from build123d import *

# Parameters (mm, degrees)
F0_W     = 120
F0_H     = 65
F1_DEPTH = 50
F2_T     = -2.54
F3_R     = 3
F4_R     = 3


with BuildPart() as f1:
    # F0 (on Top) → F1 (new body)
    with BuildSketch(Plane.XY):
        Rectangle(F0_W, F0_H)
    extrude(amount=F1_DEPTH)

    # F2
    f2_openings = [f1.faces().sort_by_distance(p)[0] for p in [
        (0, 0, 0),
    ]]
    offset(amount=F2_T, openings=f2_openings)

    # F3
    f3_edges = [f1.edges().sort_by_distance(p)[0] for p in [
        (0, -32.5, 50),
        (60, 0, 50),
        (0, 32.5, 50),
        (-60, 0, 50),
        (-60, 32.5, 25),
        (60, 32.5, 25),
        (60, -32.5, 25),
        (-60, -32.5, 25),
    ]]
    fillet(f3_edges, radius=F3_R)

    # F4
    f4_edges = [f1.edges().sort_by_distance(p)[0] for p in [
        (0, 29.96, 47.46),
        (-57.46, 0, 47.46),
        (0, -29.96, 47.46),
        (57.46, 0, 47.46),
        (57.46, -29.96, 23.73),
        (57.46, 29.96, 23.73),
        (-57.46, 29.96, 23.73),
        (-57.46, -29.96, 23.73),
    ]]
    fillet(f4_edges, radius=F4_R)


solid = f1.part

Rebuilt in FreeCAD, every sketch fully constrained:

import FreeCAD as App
import Part
import Sketcher

V = App.Vector
Q = App.Units.Quantity


def edges_at(feature, points):
    """Names of the edges that pass closest to the given points."""
    edges = feature.Shape.Edges
    near = lambda p: min(range(len(edges)), key=lambda i: edges[i].distToShape(Part.Vertex(*p))[0])
    return sorted({f"Edge{near(p) + 1}" for p in points})


def faces_at(feature, points):
    """Names of the faces that lie closest to the given points."""
    faces = feature.Shape.Faces
    near = lambda p: min(range(len(faces)), key=lambda i: faces[i].distToShape(Part.Vertex(*p))[0])
    return sorted({f"Face{near(p) + 1}" for p in points})


def add_polygon(sketch, points):
    """Adds a closed chain of lines whose ends are joined by coincident constraints."""
    first, n = sketch.GeometryCount, len(points)
    for a, b in zip(points, points[1:] + points[:1]):
        sketch.addGeometry(Part.LineSegment(App.Vector(*a, 0), App.Vector(*b, 0)), False)
    for i in range(n):
        sketch.addConstraint(Sketcher.Constraint("Coincident", first + i, 2, first + (i + 1) % n, 1))

doc = App.newDocument("Part")
body = doc.addObject("PartDesign::Body", "Body")

# Sketch on XY plane
sketch1 = body.newObject("Sketcher::SketchObject", "Sketch")
sketch1.AttachmentSupport = (doc.getObject("XY_Plane"), [""])
sketch1.MapMode = "FlatFace"
add_polygon(sketch1, [(-60, 32), (-60, -32), (60, -32), (60, 32)])  # lines 0-3
sketch1.addConstraint([
    Sketcher.Constraint("Vertical", 0),
    Sketcher.Constraint("Horizontal", 1),
    Sketcher.Constraint("Vertical", 2),
    Sketcher.Constraint("Horizontal", 3),
    Sketcher.Constraint("Symmetric", 0, 2, 2, 2, -1, 1),
    Sketcher.Constraint("DistanceX", 1, 1, 1, 2, Q("120 mm")),
    Sketcher.Constraint("DistanceY", 0, 2, 0, 1, Q("65 mm")),
])
pad1 = body.newObject("PartDesign::Pad", "Pad")
pad1.Profile = sketch1
pad1.Length = 50
doc.recompute()

thickness = body.newObject("PartDesign::Thickness", "Thickness")
thickness.Base = (pad1, faces_at(pad1, [(0, 0, 0)]))
thickness.Value = 2.54
thickness.Reversed = True
thickness.Join = "Arc"
doc.recompute()

fillet = body.newObject("PartDesign::Fillet", "Fillet")
fillet.Base = (thickness, edges_at(thickness, [
    (0, -32.5, 50),
    (60, 0, 50),
    (0, 32.5, 50),
    (-60, 0, 50),
    (-60, 32.5, 25),
    (60, 32.5, 25),
    (60, -32.5, 25),
    (-60, -32.5, 25),
]))
fillet.Radius = 3
doc.recompute()

fillet2 = body.newObject("PartDesign::Fillet", "Fillet001")
fillet2.Base = (fillet, edges_at(fillet, [
    (0, 29.96, 47.46),
    (-57.46, 0, 47.46),
    (0, -29.96, 47.46),
    (57.46, 0, 47.46),
    (57.46, -29.96, 23.73),
    (57.46, 29.96, 23.73),
    (-57.46, 29.96, 23.73),
    (-57.46, -29.96, 23.73),
]))
fillet2.Radius = 3

doc.recompute()
